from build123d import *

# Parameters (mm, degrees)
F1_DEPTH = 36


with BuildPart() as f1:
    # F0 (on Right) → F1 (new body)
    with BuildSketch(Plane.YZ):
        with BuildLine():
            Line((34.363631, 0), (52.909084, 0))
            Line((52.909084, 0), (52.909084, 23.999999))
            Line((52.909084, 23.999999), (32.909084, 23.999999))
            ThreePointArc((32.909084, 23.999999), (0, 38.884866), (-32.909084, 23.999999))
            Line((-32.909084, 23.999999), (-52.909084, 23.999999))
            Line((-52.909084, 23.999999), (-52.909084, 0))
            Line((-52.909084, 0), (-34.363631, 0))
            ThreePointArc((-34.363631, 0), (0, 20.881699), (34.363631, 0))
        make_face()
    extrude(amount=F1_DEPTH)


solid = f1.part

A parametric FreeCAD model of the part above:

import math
import FreeCAD as App
import Part
import Sketcher
Q = App.Units.Quantity

doc = App.newDocument("Part")
body = doc.addObject("PartDesign::Body", "Body")

sketch1 = body.newObject("Sketcher::SketchObject", "Sketch")
sketch1.AttachmentSupport = (doc.getObject("YZ_Plane"), [""])
sketch1.MapMode = "FlatFace"
sketch1.addGeometry(Part.LineSegment(App.Vector(34, 0, 0), App.Vector(53, 0, 0)), False)
sketch1.addGeometry(Part.LineSegment(App.Vector(53, 0, 0), App.Vector(53, 24, 0)), False)
sketch1.addGeometry(Part.LineSegment(App.Vector(53, 24, 0), App.Vector(33, 24, 0)), False)
sketch1.addGeometry(Part.ArcOfCircle(Part.Circle(App.Vector(0, -5, 0), App.Vector(0, 0, 1), 44), math.radians(41), math.radians(139)), False)
sketch1.addGeometry(Part.LineSegment(App.Vector(-33, 24, 0), App.Vector(-53, 24, 0)), False)
sketch1.addGeometry(Part.LineSegment(App.Vector(-53, 24, 0), App.Vector(-53, 0, 0)), False)
sketch1.addGeometry(Part.LineSegment(App.Vector(-53, 0, 0), App.Vector(-34, 0, 0)), False)
sketch1.addGeometry(Part.ArcOfCircle(Part.Circle(App.Vector(0, -18, 0), App.Vector(0, 0, 1), 39), math.radians(27), math.radians(153)), False)
sketch1.addConstraint(Sketcher.Constraint("Coincident", 0, 2, 1, 1))
sketch1.addConstraint(Sketcher.Constraint("Coincident", 1, 2, 2, 1))
sketch1.addConstraint(Sketcher.Constraint("Coincident", 2, 2, 3, 1))
sketch1.addConstraint(Sketcher.Constraint("Coincident", 3, 2, 4, 1))
sketch1.addConstraint(Sketcher.Constraint("Coincident", 4, 2, 5, 1))
sketch1.addConstraint(Sketcher.Constraint("Coincident", 5, 2, 6, 1))
sketch1.addConstraint(Sketcher.Constraint("Coincident", 6, 2, 7, 2))
sketch1.addConstraint(Sketcher.Constraint("Coincident", 7, 1, 0, 1))
sketch1.addConstraint(Sketcher.Constraint("Horizontal", 0))
sketch1.addConstraint(Sketcher.Constraint("Vertical", 1))
sketch1.addConstraint(Sketcher.Constraint("Horizontal", 2))
sketch1.addConstraint(Sketcher.Constraint("Horizontal", 4))
sketch1.addConstraint(Sketcher.Constraint("Vertical", 5))
sketch1.addConstraint(Sketcher.Constraint("Horizontal", 6))
sketch1.addConstraint(Sketcher.Constraint("Symmetric", 0, 2, 5, 2, -1, 1))
sketch1.addConstraint(Sketcher.Constraint("Symmetric", 2, 2, 3, 2, -2))
sketch1.addConstraint(Sketcher.Constraint("Symmetric", 6, 2, 7, 1, -2))
sketch1.addConstraint(Sketcher.Constraint("DistanceX", 2, 2, 2, 1, Q("20 mm")))
sketch1.addConstraint(Sketcher.Constraint("DistanceY", 1, 1, 1, 2, Q("23.999999 mm")))
sketch1.addConstraint(Sketcher.Constraint("Radius", 3, Q("43.821926 mm")))
sketch1.addConstraint(Sketcher.Constraint("Radius", 7, Q("38.715827 mm")))
sketch1.addConstraint(Sketcher.Constraint("DistanceX", 0, 1, 0, 2, Q("18.545453 mm")))
sketch1.addConstraint(Sketcher.Constraint("DistanceY", 3, 3, -1, 1, Q("4.93706 mm")))
pad1 = body.newObject("PartDesign::Pad", "Pad")
pad1.Profile = sketch1
pad1.Length = 36

doc.recompute()
